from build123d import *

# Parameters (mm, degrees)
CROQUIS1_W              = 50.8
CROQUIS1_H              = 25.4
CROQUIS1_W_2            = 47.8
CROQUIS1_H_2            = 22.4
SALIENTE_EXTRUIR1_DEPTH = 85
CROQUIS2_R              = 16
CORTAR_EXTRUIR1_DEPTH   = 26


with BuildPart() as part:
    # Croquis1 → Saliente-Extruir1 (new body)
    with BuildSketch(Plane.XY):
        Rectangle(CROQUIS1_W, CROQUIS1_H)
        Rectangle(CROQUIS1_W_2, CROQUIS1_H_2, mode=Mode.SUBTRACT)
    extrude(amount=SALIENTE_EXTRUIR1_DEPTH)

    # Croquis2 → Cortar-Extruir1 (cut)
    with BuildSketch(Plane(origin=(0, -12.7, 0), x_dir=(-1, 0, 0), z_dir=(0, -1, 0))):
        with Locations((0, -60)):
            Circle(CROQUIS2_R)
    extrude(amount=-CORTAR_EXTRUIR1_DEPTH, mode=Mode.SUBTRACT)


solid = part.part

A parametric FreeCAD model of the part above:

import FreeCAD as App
import Part
import Sketcher
from FreeCAD import Vector
Q = App.Units.Quantity

doc = App.newDocument("Part")
body = doc.addObject("PartDesign::Body", "Body")

# Sketch on XY plane
sketch1 = body.newObject("Sketcher::SketchObject", "Sketch")
sketch1.AttachmentSupport = (doc.getObject("XY_Plane"), [""])
sketch1.MapMode = "FlatFace"
sketch1.addGeometry(Part.LineSegment(Vector(-25.4, 12.7, 0), Vector(-25.4, -12.7, 0)), False)
sketch1.addGeometry(Part.LineSegment(Vector(-25.4, -12.7, 0), Vector(25.4, -12.7, 0)), False)
sketch1.addGeometry(Part.LineSegment(Vector(25.4, -12.7, 0), Vector(25.4, 12.7, 0)), False)
sketch1.addGeometry(Part.LineSegment(Vector(25.4, 12.7, 0), Vector(-25.4, 12.7, 0)), False)
sketch1.addGeometry(Part.LineSegment(Vector(23.9, -11.2, 0), Vector(-23.9, -11.2, 0)), False)
sketch1.addGeometry(Part.LineSegment(Vector(-23.9, -11.2, 0), Vector(-23.9, 11.2, 0)), False)
sketch1.addGeometry(Part.LineSegment(Vector(-23.9, 11.2, 0), Vector(23.9, 11.2, 0)), False)
sketch1.addGeometry(Part.LineSegment(Vector(23.9, 11.2, 0), Vector(23.9, -11.2, 0)), False)
sketch1.addConstraint(Sketcher.Constraint("Coincident", 0, 2, 1, 1))
sketch1.addConstraint(Sketcher.Constraint("Coincident", 1, 2, 2, 1))
sketch1.addConstraint(Sketcher.Constraint("Coincident", 2, 2, 3, 1))
sketch1.addConstraint(Sketcher.Constraint("Coincident", 3, 2, 0, 1))
sketch1.addConstraint(Sketcher.Constraint("Coincident", 4, 2, 5, 1))
sketch1.addConstraint(Sketcher.Constraint("Coincident", 5, 2, 6, 1))
sketch1.addConstraint(Sketcher.Constraint("Coincident", 6, 2, 7, 1))
sketch1.addConstraint(Sketcher.Constraint("Coincident", 7, 2, 4, 1))
sketch1.addConstraint(Sketcher.Constraint("Vertical", 0))
sketch1.addConstraint(Sketcher.Constraint("Horizontal", 1))
sketch1.addConstraint(Sketcher.Constraint("Vertical", 2))
sketch1.addConstraint(Sketcher.Constraint("Horizontal", 3))
sketch1.addConstraint(Sketcher.Constraint("Horizontal", 4))
sketch1.addConstraint(Sketcher.Constraint("Vertical", 5))
sketch1.addConstraint(Sketcher.Constraint("Horizontal", 6))
sketch1.addConstraint(Sketcher.Constraint("Vertical", 7))
sketch1.addConstraint(Sketcher.Constraint("Symmetric", 0, 2, 2, 2, -1, 1))
sketch1.addConstraint(Sketcher.Constraint("Symmetric", 4, 2, 6, 2, -1, 1))
sketch1.addConstraint(Sketcher.Constraint("DistanceX", 1, 1, 1, 2, Q("50.8 mm")))
sketch1.addConstraint(Sketcher.Constraint("DistanceX", 4, 2, 4, 1, Q("47.8 mm")))
sketch1.addConstraint(Sketcher.Constraint("DistanceY", 0, 2, 0, 1, Q("25.4 mm")))
sketch1.addConstraint(Sketcher.Constraint("DistanceY", 5, 1, 5, 2, Q("22.4 mm")))
pad1 = body.newObject("PartDesign::Pad", "Pad")
pad1.Profile = sketch1
pad1.Length = 85

# Sketch on XZ plane
sketch2 = body.newObject("Sketcher::SketchObject", "Sketch001")
sketch2.AttachmentSupport = (doc.getObject("XZ_Plane"), [""])
sketch2.MapMode = "FlatFace"
sketch2.AttachmentOffset = App.Placement(Vector(0, 0, 12.7), App.Rotation())
sketch2.addGeometry(Part.Circle(Vector(0, 60, 0), Vector(0, 0, 1), 16), False)
sketch2.addConstraint(Sketcher.Constraint("PointOnObject", 0, 3, -2))
sketch2.addConstraint(Sketcher.Constraint("Diameter", 0, Q("32 mm")))
sketch2.addConstraint(Sketcher.Constraint("DistanceY", -1, 1, 0, 3, Q("60 mm")))
pocket1 = body.newObject("PartDesign::Pocket", "Pocket")
pocket1.Profile = sketch2
pocket1.Length = 26

doc.recompute()
